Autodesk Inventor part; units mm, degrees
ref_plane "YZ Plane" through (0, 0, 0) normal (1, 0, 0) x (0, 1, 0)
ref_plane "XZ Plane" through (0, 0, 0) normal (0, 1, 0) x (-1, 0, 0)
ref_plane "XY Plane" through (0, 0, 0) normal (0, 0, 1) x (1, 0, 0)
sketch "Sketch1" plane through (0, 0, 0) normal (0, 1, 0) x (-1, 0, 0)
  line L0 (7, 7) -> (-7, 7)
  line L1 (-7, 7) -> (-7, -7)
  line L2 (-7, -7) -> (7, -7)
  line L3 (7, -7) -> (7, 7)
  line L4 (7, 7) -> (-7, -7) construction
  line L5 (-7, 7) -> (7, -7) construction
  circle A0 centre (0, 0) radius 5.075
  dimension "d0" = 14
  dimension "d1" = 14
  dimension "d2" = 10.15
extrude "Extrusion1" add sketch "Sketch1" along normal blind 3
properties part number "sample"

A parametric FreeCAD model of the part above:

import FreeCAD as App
import Part
import Sketcher

V = App.Vector


def add_polygon(sketch, points):
    """Adds a closed chain of lines whose ends are joined by coincident constraints."""
    first, n = sketch.GeometryCount, len(points)
    for a, b in zip(points, points[1:] + points[:1]):
        sketch.addGeometry(Part.LineSegment(App.Vector(*a, 0), App.Vector(*b, 0)), False)
    for i in range(n):
        sketch.addConstraint(Sketcher.Constraint("Coincident", first + i, 2, first + (i + 1) % n, 1))

doc = App.newDocument("Part")
body = doc.addObject("PartDesign::Body", "Body")

sketch1 = body.newObject("Sketcher::SketchObject", "Sketch")
sketch1.AttachmentSupport = (doc.getObject("XZ_Plane"), [""])
sketch1.MapMode = "FlatFace"
add_polygon(sketch1, [(-7, -7), (-7, 7), (7, 7), (7, -7)])
sketch1.addGeometry(Part.Circle(V(0, 0, 0), V(0, 0, 1), 5.075), False)
sketch1.addConstraint(Sketcher.Constraint("Vertical", 0))
sketch1.addConstraint(Sketcher.Constraint("Horizontal", 1))
sketch1.addConstraint(Sketcher.Constraint("Vertical", 2))
sketch1.addConstraint(Sketcher.Constraint("Horizontal", 3))
sketch1.addConstraint(Sketcher.Constraint("Coincident", 4, 3, -1, 1))
sketch1.addConstraint(Sketcher.Constraint("Symmetric", 0, 2, 2, 2, -1, 1))
sketch1.addConstraint(Sketcher.Constraint("Equal", 3, 0))
sketch1.addConstraint(Sketcher.Constraint("Diameter", 4, 10.15))
sketch1.addConstraint(Sketcher.Constraint("DistanceX", 1, 1, 1, 2, 14.0))
pad1 = body.newObject("PartDesign::Pad", "Pad")
pad1.Profile = sketch1
pad1.Length = 3
pad1.Reversed = True

doc.recompute()
